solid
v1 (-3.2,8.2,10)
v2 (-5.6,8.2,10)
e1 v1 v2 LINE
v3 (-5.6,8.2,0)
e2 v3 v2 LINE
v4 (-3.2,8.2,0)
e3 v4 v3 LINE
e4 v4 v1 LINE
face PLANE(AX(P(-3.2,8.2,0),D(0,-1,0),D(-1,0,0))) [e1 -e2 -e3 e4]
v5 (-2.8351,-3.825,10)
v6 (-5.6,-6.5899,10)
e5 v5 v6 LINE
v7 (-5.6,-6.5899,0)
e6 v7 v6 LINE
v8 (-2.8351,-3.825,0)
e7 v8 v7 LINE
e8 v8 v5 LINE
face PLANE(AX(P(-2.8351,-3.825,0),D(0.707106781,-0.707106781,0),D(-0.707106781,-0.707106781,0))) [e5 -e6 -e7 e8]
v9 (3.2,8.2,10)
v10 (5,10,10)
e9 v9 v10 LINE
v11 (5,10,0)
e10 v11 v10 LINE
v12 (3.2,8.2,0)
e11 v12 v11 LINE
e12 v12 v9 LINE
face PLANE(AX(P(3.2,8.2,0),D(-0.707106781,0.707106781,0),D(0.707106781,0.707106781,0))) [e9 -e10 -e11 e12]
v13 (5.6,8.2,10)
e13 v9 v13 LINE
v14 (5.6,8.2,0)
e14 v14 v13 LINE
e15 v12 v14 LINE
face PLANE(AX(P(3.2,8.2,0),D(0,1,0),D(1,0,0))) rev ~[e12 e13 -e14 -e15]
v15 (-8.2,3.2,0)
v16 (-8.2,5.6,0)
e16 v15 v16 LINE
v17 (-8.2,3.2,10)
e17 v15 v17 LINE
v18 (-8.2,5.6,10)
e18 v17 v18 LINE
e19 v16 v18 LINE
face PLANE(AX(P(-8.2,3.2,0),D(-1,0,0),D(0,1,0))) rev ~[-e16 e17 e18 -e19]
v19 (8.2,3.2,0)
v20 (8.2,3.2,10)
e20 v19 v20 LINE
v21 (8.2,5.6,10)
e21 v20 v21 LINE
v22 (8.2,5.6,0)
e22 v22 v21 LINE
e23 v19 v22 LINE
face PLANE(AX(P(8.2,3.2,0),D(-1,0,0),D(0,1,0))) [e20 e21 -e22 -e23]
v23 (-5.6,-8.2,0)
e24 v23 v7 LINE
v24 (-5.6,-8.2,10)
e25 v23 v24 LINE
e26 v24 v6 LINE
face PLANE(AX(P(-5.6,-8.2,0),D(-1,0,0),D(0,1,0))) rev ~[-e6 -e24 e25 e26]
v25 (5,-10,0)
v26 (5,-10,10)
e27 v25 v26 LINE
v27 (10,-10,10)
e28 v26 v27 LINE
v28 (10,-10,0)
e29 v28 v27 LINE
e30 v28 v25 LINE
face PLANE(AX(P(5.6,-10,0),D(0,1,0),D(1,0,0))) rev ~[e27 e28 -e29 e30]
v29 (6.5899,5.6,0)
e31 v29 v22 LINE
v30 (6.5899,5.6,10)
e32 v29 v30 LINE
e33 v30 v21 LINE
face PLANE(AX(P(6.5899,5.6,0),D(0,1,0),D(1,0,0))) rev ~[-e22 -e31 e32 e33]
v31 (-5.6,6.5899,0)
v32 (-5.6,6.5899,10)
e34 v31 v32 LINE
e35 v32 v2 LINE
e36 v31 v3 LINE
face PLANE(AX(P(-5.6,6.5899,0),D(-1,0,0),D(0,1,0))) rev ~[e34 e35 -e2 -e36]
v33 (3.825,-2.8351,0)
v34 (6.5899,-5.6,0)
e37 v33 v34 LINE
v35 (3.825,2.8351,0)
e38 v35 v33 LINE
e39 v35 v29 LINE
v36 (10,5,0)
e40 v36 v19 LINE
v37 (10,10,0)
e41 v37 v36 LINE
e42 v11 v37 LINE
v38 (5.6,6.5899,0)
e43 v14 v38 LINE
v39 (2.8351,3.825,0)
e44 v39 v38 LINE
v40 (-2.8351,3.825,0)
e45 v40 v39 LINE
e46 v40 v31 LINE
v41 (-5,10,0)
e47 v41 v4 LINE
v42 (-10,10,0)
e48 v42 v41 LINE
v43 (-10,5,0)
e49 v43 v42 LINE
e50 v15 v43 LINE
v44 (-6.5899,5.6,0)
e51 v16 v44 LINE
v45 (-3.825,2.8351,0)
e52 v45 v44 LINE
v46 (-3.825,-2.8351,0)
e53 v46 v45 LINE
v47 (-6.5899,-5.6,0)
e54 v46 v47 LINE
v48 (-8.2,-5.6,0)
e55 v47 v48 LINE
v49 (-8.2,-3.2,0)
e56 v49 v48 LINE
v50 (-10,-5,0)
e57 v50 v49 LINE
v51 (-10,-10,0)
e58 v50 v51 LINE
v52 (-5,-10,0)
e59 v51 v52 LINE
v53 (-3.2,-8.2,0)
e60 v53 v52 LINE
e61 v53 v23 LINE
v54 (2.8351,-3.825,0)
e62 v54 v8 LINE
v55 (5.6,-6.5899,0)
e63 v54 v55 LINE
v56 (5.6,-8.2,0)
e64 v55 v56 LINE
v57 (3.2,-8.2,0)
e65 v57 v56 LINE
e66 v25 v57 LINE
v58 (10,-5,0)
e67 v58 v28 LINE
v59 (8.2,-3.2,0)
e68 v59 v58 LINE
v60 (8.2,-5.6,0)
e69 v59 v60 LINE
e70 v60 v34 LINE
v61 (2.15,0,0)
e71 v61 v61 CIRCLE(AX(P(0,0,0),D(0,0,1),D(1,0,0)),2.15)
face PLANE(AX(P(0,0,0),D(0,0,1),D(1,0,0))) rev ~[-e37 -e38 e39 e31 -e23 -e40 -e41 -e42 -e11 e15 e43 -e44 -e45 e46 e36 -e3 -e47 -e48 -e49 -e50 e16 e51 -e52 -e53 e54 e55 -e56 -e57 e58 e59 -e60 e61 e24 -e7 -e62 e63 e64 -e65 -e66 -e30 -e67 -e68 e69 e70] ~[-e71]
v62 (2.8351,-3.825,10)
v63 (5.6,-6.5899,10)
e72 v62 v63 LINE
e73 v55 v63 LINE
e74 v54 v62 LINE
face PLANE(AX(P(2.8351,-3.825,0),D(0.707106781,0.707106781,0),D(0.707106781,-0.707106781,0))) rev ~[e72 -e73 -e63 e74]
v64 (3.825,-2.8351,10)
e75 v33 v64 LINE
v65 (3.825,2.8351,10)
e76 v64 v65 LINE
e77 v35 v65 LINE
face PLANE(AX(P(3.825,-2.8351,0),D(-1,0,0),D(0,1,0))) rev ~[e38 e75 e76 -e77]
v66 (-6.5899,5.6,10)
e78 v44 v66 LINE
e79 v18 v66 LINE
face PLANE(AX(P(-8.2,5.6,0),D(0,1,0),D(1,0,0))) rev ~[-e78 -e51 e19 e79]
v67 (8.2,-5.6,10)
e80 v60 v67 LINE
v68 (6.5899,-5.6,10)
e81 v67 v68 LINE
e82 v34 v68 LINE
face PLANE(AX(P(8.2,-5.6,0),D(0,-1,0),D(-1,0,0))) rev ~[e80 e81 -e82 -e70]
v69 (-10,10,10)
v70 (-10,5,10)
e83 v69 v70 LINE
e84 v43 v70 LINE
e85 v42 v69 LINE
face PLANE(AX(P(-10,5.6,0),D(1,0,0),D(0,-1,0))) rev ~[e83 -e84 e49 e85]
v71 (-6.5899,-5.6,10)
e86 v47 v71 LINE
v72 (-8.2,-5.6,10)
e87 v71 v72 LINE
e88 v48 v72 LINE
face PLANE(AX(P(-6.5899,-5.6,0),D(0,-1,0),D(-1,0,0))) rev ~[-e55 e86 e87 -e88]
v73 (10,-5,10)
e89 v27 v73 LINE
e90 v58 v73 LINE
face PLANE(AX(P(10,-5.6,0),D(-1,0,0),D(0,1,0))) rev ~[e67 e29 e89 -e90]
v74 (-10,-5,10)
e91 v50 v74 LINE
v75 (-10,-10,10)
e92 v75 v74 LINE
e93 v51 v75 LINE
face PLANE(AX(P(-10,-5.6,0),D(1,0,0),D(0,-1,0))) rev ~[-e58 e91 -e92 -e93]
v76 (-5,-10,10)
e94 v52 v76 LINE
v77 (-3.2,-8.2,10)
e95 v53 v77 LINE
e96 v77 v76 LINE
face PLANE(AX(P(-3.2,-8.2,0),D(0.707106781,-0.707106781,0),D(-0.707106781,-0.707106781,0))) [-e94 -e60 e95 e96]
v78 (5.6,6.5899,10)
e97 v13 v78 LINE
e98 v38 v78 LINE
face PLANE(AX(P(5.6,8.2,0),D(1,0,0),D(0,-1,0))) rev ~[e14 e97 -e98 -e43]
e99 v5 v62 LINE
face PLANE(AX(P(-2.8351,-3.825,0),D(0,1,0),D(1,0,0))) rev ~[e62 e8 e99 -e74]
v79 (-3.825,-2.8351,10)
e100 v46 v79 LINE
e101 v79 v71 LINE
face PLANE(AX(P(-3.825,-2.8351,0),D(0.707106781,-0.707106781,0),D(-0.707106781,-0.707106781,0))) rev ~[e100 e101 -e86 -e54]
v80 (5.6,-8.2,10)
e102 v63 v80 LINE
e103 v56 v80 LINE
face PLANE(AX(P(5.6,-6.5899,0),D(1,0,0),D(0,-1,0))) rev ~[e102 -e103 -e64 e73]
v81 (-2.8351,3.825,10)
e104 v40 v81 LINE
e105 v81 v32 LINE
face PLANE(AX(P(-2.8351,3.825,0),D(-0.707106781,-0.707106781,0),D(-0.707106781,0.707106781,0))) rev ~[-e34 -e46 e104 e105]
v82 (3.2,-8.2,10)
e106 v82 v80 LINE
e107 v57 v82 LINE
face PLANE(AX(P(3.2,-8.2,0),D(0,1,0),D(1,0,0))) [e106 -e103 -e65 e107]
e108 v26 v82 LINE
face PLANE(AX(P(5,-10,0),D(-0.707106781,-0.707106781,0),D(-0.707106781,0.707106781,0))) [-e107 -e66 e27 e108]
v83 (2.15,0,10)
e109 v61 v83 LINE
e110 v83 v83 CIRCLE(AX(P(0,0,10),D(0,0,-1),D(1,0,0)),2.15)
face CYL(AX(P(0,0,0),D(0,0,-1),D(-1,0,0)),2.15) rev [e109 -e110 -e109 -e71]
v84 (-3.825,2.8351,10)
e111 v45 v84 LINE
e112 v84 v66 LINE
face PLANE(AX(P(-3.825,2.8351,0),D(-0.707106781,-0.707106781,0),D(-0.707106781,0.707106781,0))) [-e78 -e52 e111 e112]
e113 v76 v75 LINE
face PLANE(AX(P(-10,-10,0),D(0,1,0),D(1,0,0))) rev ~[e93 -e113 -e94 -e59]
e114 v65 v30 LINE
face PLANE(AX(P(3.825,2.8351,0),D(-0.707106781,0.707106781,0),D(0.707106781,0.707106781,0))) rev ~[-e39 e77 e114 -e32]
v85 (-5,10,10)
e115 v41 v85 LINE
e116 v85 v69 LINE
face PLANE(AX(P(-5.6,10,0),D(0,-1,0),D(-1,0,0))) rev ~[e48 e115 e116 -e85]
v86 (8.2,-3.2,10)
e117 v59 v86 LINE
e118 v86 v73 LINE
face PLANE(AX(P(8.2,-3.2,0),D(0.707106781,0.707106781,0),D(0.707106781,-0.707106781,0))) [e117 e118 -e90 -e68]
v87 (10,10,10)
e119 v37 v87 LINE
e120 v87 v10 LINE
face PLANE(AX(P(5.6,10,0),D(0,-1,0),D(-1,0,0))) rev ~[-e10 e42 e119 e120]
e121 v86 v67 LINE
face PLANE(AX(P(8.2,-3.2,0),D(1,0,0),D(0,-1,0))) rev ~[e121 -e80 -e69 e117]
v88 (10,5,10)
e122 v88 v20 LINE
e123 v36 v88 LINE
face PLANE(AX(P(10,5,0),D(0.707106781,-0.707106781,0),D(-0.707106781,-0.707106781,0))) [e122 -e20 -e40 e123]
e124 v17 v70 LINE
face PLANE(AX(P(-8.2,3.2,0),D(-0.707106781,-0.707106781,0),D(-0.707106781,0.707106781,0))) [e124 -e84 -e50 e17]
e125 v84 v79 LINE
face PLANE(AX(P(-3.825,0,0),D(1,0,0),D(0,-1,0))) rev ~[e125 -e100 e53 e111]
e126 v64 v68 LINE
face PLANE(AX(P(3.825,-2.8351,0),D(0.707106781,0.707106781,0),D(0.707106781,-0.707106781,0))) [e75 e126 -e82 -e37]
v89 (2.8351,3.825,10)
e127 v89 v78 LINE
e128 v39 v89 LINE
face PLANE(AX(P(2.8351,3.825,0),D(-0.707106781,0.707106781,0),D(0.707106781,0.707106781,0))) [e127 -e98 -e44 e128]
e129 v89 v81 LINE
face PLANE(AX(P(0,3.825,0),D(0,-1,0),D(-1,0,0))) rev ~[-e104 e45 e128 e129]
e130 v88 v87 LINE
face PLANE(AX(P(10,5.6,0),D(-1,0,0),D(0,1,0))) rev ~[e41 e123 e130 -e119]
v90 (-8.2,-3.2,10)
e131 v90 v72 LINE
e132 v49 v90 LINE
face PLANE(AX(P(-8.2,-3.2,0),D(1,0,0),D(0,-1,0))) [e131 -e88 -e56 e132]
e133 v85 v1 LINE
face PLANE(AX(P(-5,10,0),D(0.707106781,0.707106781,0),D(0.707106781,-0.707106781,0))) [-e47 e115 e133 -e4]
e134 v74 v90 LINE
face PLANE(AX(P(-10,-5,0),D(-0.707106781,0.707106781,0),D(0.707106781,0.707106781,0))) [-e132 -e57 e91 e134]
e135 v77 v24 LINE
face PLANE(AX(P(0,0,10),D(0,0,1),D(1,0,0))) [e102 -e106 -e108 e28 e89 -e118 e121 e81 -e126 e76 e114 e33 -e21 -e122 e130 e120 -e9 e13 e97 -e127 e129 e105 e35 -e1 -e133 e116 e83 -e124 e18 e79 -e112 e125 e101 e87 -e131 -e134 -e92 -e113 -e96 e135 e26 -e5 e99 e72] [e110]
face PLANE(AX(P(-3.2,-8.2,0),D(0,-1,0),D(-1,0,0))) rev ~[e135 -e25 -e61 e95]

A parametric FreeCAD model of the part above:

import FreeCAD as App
import Part
import Sketcher


def add_polygon(sketch, points):
    """Adds a closed chain of lines whose ends are joined by coincident constraints."""
    first, n = sketch.GeometryCount, len(points)
    for a, b in zip(points, points[1:] + points[:1]):
        sketch.addGeometry(Part.LineSegment(App.Vector(*a, 0), App.Vector(*b, 0)), False)
    for i in range(n):
        sketch.addConstraint(Sketcher.Constraint("Coincident", first + i, 2, first + (i + 1) % n, 1))

doc = App.newDocument("Part")
params = doc.addObject("Spreadsheet::Sheet", "Params")
for row, (alias, value) in enumerate([
    ("sketch1_diameter", "4.3 mm"),
    ("sketch1_width", "1.61 mm"),
    ("pad1_length", "10 mm"),
], start=1):
    params.set(f"A{row}", alias)
    params.set(f"B{row}", "=" + value)
    params.setAlias(f"B{row}", alias)

body = doc.addObject("PartDesign::Body", "Body")

# Sketch on XY plane
sketch1 = body.newObject("Sketcher::SketchObject", "Sketch")
sketch1.AttachmentSupport = (doc.getObject("XY_Plane"), [""])
sketch1.MapMode = "FlatFace"
add_polygon(sketch1, [(-10, -10), (-5, -10), (-3.2, -8.2), (-5.6, -8.2), (-5.6, -6.6), (-2.8, -3.8), (2.8, -3.8), (5.6, -6.6), (5.6, -8.2), (3.2, -8.2), (5, -10), (10, -10), (10, -5), (8.2, -3.2), (8.2, -5.6), (6.6, -5.6), (3.8, -2.8), (3.8, 2.8), (6.6, 5.6), (8.2, 5.6), (8.2, 3.2), (10, 5), (10, 10), (5, 10), (3.2, 8.2), (5.6, 8.2), (5.6, 6.6), (2.8, 3.8), (-2.8, 3.8), (-5.6, 6.6), (-5.6, 8.2), (-3.2, 8.2), (-5, 10), (-10, 10), (-10, 5), (-8.2, 3.2), (-8.2, 5.6), (-6.6, 5.6), (-3.8, 2.8), (-3.8, -2.8), (-6.6, -5.6), (-8.2, -5.6), (-8.2, -3.2), (-10, -5)])  # lines 0-43
sketch1.addGeometry(Part.Circle(App.Vector(0, 0, 0), App.Vector(0, 0, 1), 2.1), False)  # 44
sketch1.addConstraint([
    Sketcher.Constraint("Horizontal", 0),
    Sketcher.Constraint("Horizontal", 2),
    Sketcher.Constraint("Vertical", 3),
    Sketcher.Constraint("Horizontal", 5),
    Sketcher.Constraint("Vertical", 7),
    Sketcher.Constraint("Horizontal", 8),
    Sketcher.Constraint("Horizontal", 10),
    Sketcher.Constraint("Vertical", 11),
    Sketcher.Constraint("Vertical", 13),
    Sketcher.Constraint("Horizontal", 14),
    Sketcher.Constraint("Vertical", 16),
    Sketcher.Constraint("Horizontal", 18),
    Sketcher.Constraint("Vertical", 19),
    Sketcher.Constraint("Vertical", 21),
    Sketcher.Constraint("Horizontal", 22),
    Sketcher.Constraint("Horizontal", 24),
    Sketcher.Constraint("Vertical", 25),
    Sketcher.Constraint("Horizontal", 27),
    Sketcher.Constraint("Vertical", 29),
    Sketcher.Constraint("Horizontal", 30),
    Sketcher.Constraint("Horizontal", 32),
    Sketcher.Constraint("Vertical", 33),
    Sketcher.Constraint("Vertical", 35),
    Sketcher.Constraint("Horizontal", 36),
    Sketcher.Constraint("Vertical", 38),
    Sketcher.Constraint("Horizontal", 40),
    Sketcher.Constraint("Vertical", 41),
    Sketcher.Constraint("Vertical", 43),
    Sketcher.Constraint("Coincident", 44, 3, -1, 1),
    Sketcher.Constraint("Symmetric", 0, 2, 22, 2, -1, 1),
    Sketcher.Constraint("Symmetric", 1, 2, 23, 2, -1, 1),
    Sketcher.Constraint("Symmetric", 3, 2, 25, 2, -1, 1),
    Sketcher.Constraint("Symmetric", 4, 2, 26, 2, -1, 1),
    Sketcher.Constraint("Symmetric", 6, 2, 28, 2, -1, 1),
    Sketcher.Constraint("Symmetric", 8, 2, 30, 2, -1, 1),
    Sketcher.Constraint("Symmetric", 9, 2, 31, 2, -1, 1),
    Sketcher.Constraint("Symmetric", 11, 2, 33, 2, -1, 1),
    Sketcher.Constraint("Symmetric", 12, 2, 34, 2, -1, 1),
    Sketcher.Constraint("Symmetric", 14, 2, 36, 2, -1, 1),
    Sketcher.Constraint("Symmetric", 15, 2, 37, 2, -1, 1),
    Sketcher.Constraint("Symmetric", 17, 2, 39, 2, -1, 1),
    Sketcher.Constraint("Symmetric", 19, 2, 41, 2, -1, 1),
    Sketcher.Constraint("Symmetric", 20, 2, 42, 2, -1, 1),
    Sketcher.Constraint("Symmetric", 3, 2, 6, 2, -2),
    Sketcher.Constraint("Symmetric", 1, 2, 8, 2, -2),
    Sketcher.Constraint("Symmetric", 0, 2, 9, 2, -2),
    Sketcher.Constraint("Symmetric", 20, 2, 33, 2, -2),
    Sketcher.Constraint("Symmetric", 19, 2, 34, 2, -2),
    Sketcher.Constraint("Symmetric", 17, 2, 36, 2, -2),
    Sketcher.Constraint("Parallel", 1, 4),
    Sketcher.Constraint("Perpendicular", 4, 6),
    Sketcher.Constraint("Parallel", 6, 9),
    Sketcher.Constraint("Parallel", 9, 12),
    Sketcher.Constraint("Parallel", 12, 15),
    Sketcher.Constraint("Perpendicular", 15, 17),
    Sketcher.Constraint("Perpendicular", 26, 28),
    Sketcher.Constraint("Perpendicular", 37, 39),
    Sketcher.Constraint("Equal", 40, 3),
    Sketcher.Constraint("Equal", 32, 11),
    Sketcher.Constraint("Equal", 30, 13),
    Sketcher.Constraint("Equal", 27, 16),
    Sketcher.Constraint("Equal", 9, 12),
    Sketcher.Constraint("Equal", 6, 15),
    Sketcher.Constraint("Diameter", 44, 4.3),
    Sketcher.Constraint("DistanceY", 0, 2, -1, 1, 10.0),
    Sketcher.Constraint("DistanceX", 1, 2, -1, 1, 3.2),
    Sketcher.Constraint("DistanceX", 0, 2, 1, 2, 1.8),
    Sketcher.Constraint("DistanceX", 7, 2, 10, 2, 4.4),
    Sketcher.Constraint("DistanceY", 4, 2, -1, 1, 3.825),
    Sketcher.Constraint("DistanceX", 14, 2, 14, 1, 1.61),
])
sketch1.setExpression("Constraints[107]", "Params.sketch1_diameter")
sketch1.setExpression("Constraints[113]", "Params.sketch1_width")
pad1 = body.newObject("PartDesign::Pad", "Pad")
pad1.Profile = sketch1
pad1.setExpression("Length", "Params.pad1_length")

doc.recompute()
